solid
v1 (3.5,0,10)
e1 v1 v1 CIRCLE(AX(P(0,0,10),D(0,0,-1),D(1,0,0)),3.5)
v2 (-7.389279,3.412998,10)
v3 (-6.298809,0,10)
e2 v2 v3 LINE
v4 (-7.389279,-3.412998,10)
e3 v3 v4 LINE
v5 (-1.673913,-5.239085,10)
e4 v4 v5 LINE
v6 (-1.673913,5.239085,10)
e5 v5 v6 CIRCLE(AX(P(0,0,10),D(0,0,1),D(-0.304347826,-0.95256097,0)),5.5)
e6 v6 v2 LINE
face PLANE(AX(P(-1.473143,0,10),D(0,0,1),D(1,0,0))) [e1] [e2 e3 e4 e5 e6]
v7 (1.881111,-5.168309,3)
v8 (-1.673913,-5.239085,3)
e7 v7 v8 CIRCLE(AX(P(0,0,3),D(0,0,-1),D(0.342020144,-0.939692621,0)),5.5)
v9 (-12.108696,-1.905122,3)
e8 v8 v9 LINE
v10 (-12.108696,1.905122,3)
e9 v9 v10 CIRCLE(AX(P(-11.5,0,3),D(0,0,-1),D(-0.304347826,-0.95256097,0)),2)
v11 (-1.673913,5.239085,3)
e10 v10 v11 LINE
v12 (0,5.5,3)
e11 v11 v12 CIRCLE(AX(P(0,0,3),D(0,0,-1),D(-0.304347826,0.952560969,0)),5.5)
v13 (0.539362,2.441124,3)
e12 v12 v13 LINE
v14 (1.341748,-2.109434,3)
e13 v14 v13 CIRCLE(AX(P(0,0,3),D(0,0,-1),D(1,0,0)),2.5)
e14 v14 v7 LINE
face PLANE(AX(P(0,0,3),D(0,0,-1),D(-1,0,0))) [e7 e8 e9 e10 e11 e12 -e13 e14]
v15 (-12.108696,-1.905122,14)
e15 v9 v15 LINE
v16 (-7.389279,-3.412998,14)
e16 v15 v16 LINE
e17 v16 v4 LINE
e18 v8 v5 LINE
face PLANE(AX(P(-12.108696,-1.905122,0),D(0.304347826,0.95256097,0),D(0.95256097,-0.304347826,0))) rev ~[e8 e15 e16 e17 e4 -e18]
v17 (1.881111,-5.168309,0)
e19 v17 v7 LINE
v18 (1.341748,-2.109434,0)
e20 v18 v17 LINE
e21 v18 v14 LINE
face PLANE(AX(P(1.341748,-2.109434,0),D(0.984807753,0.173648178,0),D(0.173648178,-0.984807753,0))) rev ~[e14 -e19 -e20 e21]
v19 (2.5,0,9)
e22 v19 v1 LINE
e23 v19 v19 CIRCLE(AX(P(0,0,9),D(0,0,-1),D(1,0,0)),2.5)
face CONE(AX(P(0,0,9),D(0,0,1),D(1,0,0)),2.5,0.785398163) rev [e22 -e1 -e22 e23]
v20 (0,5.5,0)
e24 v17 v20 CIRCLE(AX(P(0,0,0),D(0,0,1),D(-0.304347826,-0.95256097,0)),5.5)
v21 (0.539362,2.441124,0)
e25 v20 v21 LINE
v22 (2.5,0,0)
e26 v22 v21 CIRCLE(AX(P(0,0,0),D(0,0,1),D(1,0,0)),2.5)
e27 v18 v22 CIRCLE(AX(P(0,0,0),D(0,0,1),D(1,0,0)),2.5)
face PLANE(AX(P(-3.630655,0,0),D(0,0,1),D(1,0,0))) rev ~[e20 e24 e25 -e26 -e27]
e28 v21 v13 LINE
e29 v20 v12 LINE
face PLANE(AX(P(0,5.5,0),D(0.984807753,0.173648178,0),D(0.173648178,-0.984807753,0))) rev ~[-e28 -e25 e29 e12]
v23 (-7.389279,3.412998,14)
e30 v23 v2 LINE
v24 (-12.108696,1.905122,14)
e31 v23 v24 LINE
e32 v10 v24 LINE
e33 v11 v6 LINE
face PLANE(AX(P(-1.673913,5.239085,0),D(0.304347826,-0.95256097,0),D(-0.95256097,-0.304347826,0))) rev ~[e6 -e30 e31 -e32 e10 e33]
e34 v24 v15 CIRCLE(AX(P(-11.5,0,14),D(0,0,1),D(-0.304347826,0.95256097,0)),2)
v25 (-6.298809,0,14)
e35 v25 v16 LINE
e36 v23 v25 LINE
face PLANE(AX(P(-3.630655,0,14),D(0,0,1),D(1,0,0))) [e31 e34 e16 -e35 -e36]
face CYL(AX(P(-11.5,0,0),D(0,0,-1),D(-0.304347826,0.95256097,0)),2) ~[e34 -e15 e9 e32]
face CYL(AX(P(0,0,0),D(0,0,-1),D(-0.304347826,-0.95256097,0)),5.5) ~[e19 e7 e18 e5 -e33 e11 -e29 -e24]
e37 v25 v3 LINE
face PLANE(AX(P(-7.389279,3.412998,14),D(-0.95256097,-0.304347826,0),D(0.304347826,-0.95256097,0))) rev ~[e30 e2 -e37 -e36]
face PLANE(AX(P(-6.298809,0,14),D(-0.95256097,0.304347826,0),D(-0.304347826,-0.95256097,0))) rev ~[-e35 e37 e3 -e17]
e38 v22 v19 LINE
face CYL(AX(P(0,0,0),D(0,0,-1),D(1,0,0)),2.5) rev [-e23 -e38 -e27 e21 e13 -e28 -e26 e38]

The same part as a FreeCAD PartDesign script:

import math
import FreeCAD as App
import Part
import Sketcher

V = App.Vector
Q = App.Units.Quantity


def edges_at(feature, points):
    """Names of the edges that pass closest to the given points."""
    edges = feature.Shape.Edges
    near = lambda p: min(range(len(edges)), key=lambda i: edges[i].distToShape(Part.Vertex(*p))[0])
    return sorted({f"Edge{near(p) + 1}" for p in points})

doc = App.newDocument("Part")
body = doc.addObject("PartDesign::Body", "Body")

sketch1 = doc.addObject("Sketcher::SketchObject", "Sketch")
body.addObject(sketch1)
sketch1.AttachmentSupport = (doc.XY_Plane, [""])
sketch1.MapMode = "FlatFace"
sketch1.addGeometry([
    Part.LineSegment(V(-1.7, 5.2, 0), V(-12.1, 1.9, 0)),
    Part.ArcOfCircle(Part.Circle(V(-11.5, 0, 0), V(0, 0, 1), 2), math.radians(108), math.radians(252)),
    Part.LineSegment(V(-12.1, -1.9, 0), V(-1.7, -5.2, 0)),
    Part.ArcOfCircle(Part.Circle(V(0, 0, 0), V(0, 0, 1), 5.5), math.radians(-108), math.radians(108)),
    Part.Circle(V(0, 0, 0), V(0, 0, 1), 2.5),
], False)
sketch1.addConstraint([
    Sketcher.Constraint("Tangent", 0, 2, 1, 1),
    Sketcher.Constraint("Tangent", 1, 2, 2, 1),
    Sketcher.Constraint("Tangent", 2, 2, 3, 1),
    Sketcher.Constraint("Tangent", 3, 2, 0, 1),
    Sketcher.Constraint("Coincident", 3, 3, -1, 1),
    Sketcher.Constraint("Coincident", 4, 3, -1, 1),
    Sketcher.Constraint("PointOnObject", 1, 3, -1),
    Sketcher.Constraint("Diameter", 4, 5.0),
    Sketcher.Constraint("Radius", 1, 2.0),
    Sketcher.Constraint("Radius", 3, 5.5),
    Sketcher.Constraint("DistanceX", 1, 3, -1, 1, 11.5),
])
pad1 = doc.addObject("PartDesign::Pad", "Pad")
body.addObject(pad1)
pad1.Profile = sketch1
pad1.Length = 14

sketch2 = doc.addObject("Sketcher::SketchObject", "Sketch001")
body.addObject(sketch2)
sketch2.AttachmentSupport = (doc.XY_Plane, [""])
sketch2.MapMode = "FlatFace"
sketch2.AttachmentOffset = App.Placement(V(0, 0, 14), App.Rotation())
sketch2.addGeometry([
    Part.LineSegment(V(-1.7, 5.2, 0), V(-7.4, 3.4, 0)),
    Part.LineSegment(V(-7.4, 3.4, 0), V(-6.3, 0, 0)),
    Part.LineSegment(V(-6.3, 0, 0), V(-7.4, -3.4, 0)),
    Part.LineSegment(V(-7.4, -3.4, 0), V(-1.7, -5.2, 0)),
    Part.ArcOfCircle(Part.Circle(V(0, 0, 0), V(0, 0, 1), 5.5), math.radians(-108), math.radians(108)),
], False)
sketch2.addConstraint([
    Sketcher.Constraint("Coincident", 0, 2, 1, 1),
    Sketcher.Constraint("Coincident", 1, 2, 2, 1),
    Sketcher.Constraint("Coincident", 2, 2, 3, 1),
    Sketcher.Constraint("Tangent", 3, 2, 4, 1),
    Sketcher.Constraint("Tangent", 4, 2, 0, 1),
    Sketcher.Constraint("Coincident", 4, 3, -1, 1),
    Sketcher.Constraint("Symmetric", 0, 2, 2, 2, -1),
    Sketcher.Constraint("PointOnObject", 1, 2, -1),
    Sketcher.Constraint("Perpendicular", 0, 1),
    Sketcher.Constraint("Radius", 4, 5.5),
    Sketcher.Constraint("Distance", 0, 6.0),
    Sketcher.Constraint("DistanceY", -1, 1, 0, 2, 3.412998),
])
pocket1 = doc.addObject("PartDesign::Pocket", "Pocket")
body.addObject(pocket1)
pocket1.Profile = sketch2
pocket1.Length = 4

sketch3 = doc.addObject("Sketcher::SketchObject", "Sketch002")
body.addObject(sketch3)
sketch3.AttachmentSupport = (doc.XY_Plane, [""])
sketch3.MapMode = "FlatFace"
sketch3.addGeometry([
    Part.ArcOfCircle(Part.Circle(V(0, 0, 0), V(0, 0, 1), 5.5), math.radians(-108), math.radians(-70)),
    Part.LineSegment(V(-1.7, -5.2, 0), V(-12.1, -1.9, 0)),
    Part.ArcOfCircle(Part.Circle(V(-11.5, 0, 0), V(0, 0, 1), 2), math.radians(108), math.radians(252)),
    Part.LineSegment(V(-12.1, 1.9, 0), V(-1.7, 5.2, 0)),
    Part.ArcOfCircle(Part.Circle(V(0, 0, 0), V(0, 0, 1), 5.5), math.radians(90), math.radians(107.72)),
    Part.LineSegment(V(0, 5.5, 0), V(0.5, 2.4, 0)),
    Part.ArcOfCircle(Part.Circle(V(0, 0, 0), V(0, 0, 1), 2.5), math.radians(-58), math.radians(78)),
    Part.LineSegment(V(1.3, -2.1, 0), V(1.9, -5.2, 0)),
], False)
sketch3.addConstraint([
    Sketcher.Constraint("Tangent", 0, 1, 1, 1),
    Sketcher.Constraint("Tangent", 1, 2, 2, 2),
    Sketcher.Constraint("Tangent", 2, 1, 3, 1),
    Sketcher.Constraint("Tangent", 3, 2, 4, 2),
    Sketcher.Constraint("Coincident", 4, 1, 5, 1),
    Sketcher.Constraint("Coincident", 5, 2, 6, 2),
    Sketcher.Constraint("Coincident", 6, 1, 7, 1),
    Sketcher.Constraint("Coincident", 7, 2, 0, 2),
    Sketcher.Constraint("Coincident", 0, 3, -1, 1),
    Sketcher.Constraint("Coincident", 4, 3, -1, 1),
    Sketcher.Constraint("Coincident", 6, 3, -1, 1),
    Sketcher.Constraint("Equal", 0, 4),
    Sketcher.Constraint("PointOnObject", 2, 3, -1),
    Sketcher.Constraint("PointOnObject", 4, 1, -2),
    Sketcher.Constraint("Parallel", 5, 7),
    Sketcher.Constraint("Equal", 5, 7),
    Sketcher.Constraint("Radius", 2, 2.0),
    Sketcher.Constraint("Radius", 0, 5.5),
    Sketcher.Constraint("Radius", 6, 2.5),
    Sketcher.Constraint("Angle", 5, Q("-80 deg")),
    Sketcher.Constraint("DistanceX", 2, 3, -1, 1, 11.5),
])
pocket2 = doc.addObject("PartDesign::Pocket", "Pocket001")
body.addObject(pocket2)
pocket2.Profile = sketch3
pocket2.Length = 3
pocket2.Reversed = True
doc.recompute()

chamfer = doc.addObject("PartDesign::Chamfer", "Chamfer")
body.addObject(chamfer)
chamfer.Base = (pocket2, edges_at(pocket2, [(-2.5, 0, 10)]))
chamfer.Size = 1

doc.recompute()
